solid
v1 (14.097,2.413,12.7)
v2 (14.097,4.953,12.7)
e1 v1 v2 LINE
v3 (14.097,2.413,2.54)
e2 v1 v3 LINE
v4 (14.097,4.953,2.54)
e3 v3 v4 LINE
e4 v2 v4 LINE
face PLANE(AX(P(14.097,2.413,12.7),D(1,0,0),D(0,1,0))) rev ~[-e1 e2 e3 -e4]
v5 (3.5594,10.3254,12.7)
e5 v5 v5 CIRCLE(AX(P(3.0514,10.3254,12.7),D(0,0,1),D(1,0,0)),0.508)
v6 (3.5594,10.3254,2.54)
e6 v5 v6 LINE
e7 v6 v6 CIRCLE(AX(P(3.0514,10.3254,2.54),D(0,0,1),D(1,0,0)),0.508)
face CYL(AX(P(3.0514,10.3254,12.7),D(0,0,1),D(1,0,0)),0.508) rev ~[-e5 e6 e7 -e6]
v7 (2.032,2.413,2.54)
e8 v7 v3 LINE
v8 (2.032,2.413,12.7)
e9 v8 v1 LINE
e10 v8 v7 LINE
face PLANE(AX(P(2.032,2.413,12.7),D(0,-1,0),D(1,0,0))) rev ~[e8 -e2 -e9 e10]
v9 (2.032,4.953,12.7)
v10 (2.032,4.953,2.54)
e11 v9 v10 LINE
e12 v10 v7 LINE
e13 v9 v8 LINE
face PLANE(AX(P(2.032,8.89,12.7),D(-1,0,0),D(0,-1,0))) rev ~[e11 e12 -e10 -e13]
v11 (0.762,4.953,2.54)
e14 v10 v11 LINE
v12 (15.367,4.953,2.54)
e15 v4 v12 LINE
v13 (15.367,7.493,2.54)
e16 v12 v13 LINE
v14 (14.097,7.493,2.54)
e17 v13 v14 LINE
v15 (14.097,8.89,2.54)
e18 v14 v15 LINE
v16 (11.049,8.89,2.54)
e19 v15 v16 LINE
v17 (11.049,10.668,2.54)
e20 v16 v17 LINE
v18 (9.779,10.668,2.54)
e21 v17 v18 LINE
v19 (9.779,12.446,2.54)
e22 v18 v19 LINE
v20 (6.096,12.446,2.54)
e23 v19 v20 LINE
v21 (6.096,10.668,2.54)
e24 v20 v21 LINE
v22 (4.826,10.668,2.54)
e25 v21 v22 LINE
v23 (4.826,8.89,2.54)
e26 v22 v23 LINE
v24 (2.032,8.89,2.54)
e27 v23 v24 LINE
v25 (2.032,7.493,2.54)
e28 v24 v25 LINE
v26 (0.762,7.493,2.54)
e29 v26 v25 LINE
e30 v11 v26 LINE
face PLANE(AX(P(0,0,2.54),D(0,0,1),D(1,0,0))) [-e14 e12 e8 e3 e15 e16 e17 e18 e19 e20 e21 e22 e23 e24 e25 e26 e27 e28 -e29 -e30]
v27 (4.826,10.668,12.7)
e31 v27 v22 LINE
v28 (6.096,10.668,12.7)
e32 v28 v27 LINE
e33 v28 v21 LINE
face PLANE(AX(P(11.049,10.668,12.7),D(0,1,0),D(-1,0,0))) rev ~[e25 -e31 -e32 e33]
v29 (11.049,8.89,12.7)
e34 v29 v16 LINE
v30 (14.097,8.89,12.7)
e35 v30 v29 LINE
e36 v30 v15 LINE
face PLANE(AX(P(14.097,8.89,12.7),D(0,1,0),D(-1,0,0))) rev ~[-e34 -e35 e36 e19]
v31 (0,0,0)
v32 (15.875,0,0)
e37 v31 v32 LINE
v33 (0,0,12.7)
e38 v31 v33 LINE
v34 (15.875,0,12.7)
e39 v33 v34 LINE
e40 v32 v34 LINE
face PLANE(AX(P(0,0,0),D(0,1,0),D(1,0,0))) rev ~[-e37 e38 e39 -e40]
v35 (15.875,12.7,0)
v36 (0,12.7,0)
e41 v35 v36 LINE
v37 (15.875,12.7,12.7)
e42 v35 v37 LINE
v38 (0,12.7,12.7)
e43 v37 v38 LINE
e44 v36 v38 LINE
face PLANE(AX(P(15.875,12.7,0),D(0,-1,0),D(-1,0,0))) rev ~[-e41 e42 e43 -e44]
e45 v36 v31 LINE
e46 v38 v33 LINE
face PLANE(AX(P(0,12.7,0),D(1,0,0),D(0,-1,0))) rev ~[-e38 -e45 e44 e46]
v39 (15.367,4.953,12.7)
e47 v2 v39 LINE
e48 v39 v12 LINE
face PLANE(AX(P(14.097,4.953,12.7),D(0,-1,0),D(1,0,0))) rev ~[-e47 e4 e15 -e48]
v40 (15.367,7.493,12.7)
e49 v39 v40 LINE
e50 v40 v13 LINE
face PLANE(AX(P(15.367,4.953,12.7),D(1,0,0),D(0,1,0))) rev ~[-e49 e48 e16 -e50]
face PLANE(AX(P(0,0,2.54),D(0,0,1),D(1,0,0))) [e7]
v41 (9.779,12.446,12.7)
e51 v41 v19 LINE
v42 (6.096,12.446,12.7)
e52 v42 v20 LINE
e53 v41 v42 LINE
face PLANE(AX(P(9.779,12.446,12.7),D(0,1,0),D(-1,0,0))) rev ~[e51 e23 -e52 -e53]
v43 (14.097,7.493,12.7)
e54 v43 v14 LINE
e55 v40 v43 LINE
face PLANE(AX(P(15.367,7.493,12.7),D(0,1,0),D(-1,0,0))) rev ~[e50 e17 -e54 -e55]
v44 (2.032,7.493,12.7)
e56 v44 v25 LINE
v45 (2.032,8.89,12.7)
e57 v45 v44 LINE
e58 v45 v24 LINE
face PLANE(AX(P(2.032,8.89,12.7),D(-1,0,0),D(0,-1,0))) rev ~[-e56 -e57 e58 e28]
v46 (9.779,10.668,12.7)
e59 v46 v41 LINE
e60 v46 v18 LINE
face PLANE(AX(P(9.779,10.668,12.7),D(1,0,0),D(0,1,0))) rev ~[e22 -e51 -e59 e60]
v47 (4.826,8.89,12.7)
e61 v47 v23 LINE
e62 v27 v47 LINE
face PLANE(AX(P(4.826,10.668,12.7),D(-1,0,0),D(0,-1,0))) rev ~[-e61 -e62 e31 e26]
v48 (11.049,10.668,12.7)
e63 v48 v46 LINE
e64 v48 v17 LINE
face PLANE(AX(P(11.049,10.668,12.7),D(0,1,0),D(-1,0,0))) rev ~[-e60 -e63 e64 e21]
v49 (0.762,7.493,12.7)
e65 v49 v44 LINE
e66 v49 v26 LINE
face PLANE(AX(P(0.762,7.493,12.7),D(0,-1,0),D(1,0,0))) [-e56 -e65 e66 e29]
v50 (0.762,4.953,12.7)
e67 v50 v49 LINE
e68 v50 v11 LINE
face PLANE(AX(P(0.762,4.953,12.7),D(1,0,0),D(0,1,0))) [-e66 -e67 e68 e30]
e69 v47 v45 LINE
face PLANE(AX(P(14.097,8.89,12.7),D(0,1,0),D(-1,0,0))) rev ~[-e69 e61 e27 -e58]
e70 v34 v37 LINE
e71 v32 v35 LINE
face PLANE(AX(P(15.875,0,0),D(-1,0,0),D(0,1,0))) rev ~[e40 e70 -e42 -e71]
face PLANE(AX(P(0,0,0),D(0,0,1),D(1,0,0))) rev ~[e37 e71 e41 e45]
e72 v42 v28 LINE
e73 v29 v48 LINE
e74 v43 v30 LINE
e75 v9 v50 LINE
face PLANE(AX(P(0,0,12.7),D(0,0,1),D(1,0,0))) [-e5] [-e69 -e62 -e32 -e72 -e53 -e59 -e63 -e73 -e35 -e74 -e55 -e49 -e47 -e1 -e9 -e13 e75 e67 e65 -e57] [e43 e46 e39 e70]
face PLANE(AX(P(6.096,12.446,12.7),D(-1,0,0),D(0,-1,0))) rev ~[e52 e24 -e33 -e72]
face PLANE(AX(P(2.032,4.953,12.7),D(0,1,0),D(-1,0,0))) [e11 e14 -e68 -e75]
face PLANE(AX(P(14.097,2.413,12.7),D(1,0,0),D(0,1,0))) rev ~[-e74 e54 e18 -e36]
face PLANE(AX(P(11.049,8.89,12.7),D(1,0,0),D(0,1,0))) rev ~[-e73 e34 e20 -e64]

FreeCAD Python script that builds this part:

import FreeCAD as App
import Part
import Sketcher

V = App.Vector
Q = App.Units.Quantity

doc = App.newDocument("Part")
body = doc.addObject("PartDesign::Body", "Body")

sketch1 = body.newObject("Sketcher::SketchObject", "Sketch")
sketch1.AttachmentSupport = (doc.getObject("XY_Plane"), [""])
sketch1.MapMode = "FlatFace"
sketch1.addGeometry(Part.LineSegment(V(0, 12.7, 0), V(0, 0, 0)), False)
sketch1.addGeometry(Part.LineSegment(V(0, 0, 0), V(15.875, 0, 0)), False)
sketch1.addGeometry(Part.LineSegment(V(15.875, 0, 0), V(15.875, 12.7, 0)), False)
sketch1.addGeometry(Part.LineSegment(V(15.875, 12.7, 0), V(0, 12.7, 0)), False)
sketch1.addConstraint(Sketcher.Constraint("Coincident", 0, 2, 1, 1))
sketch1.addConstraint(Sketcher.Constraint("Coincident", 1, 2, 2, 1))
sketch1.addConstraint(Sketcher.Constraint("Coincident", 2, 2, 3, 1))
sketch1.addConstraint(Sketcher.Constraint("Coincident", 3, 2, 0, 1))
sketch1.addConstraint(Sketcher.Constraint("Vertical", 0))
sketch1.addConstraint(Sketcher.Constraint("Horizontal", 1))
sketch1.addConstraint(Sketcher.Constraint("Vertical", 2))
sketch1.addConstraint(Sketcher.Constraint("Horizontal", 3))
sketch1.addConstraint(Sketcher.Constraint("Coincident", 0, 2, -1, 1))
sketch1.addConstraint(Sketcher.Constraint("DistanceY", 0, 2, 0, 1, Q("0.5 in")))
sketch1.addConstraint(Sketcher.Constraint("DistanceX", 1, 1, 1, 2, Q("0.625 in")))
pad1 = body.newObject("PartDesign::Pad", "Pad")
pad1.Profile = sketch1
pad1.Length = Q("0.5 in")

sketch2 = body.newObject("Sketcher::SketchObject", "Sketch001")
sketch2.AttachmentSupport = (doc.getObject("XY_Plane"), [""])
sketch2.MapMode = "FlatFace"
sketch2.AttachmentOffset = App.Placement(V(0, 0, 0.5 * 25.4), App.Rotation())
sketch2.addGeometry(Part.LineSegment(V(2.032, 8.89, 0), V(2.032, 2.413, 0)), False)
sketch2.addGeometry(Part.LineSegment(V(2.032, 2.413, 0), V(14.097, 2.413, 0)), False)
sketch2.addGeometry(Part.LineSegment(V(14.097, 2.413, 0), V(14.097, 8.89, 0)), False)
sketch2.addGeometry(Part.LineSegment(V(14.097, 8.89, 0), V(2.032, 8.89, 0)), False)
sketch2.addConstraint(Sketcher.Constraint("Coincident", 0, 2, 1, 1))
sketch2.addConstraint(Sketcher.Constraint("Coincident", 1, 2, 2, 1))
sketch2.addConstraint(Sketcher.Constraint("Coincident", 2, 2, 3, 1))
sketch2.addConstraint(Sketcher.Constraint("Coincident", 3, 2, 0, 1))
sketch2.addConstraint(Sketcher.Constraint("Vertical", 0))
sketch2.addConstraint(Sketcher.Constraint("Horizontal", 1))
sketch2.addConstraint(Sketcher.Constraint("Vertical", 2))
sketch2.addConstraint(Sketcher.Constraint("Horizontal", 3))
sketch2.addConstraint(Sketcher.Constraint("DistanceX", 1, 1, 1, 2, Q("0.475 in")))
sketch2.addConstraint(Sketcher.Constraint("DistanceY", 0, 2, 0, 1, Q("0.255 in")))
sketch2.addConstraint(Sketcher.Constraint("DistanceX", -1, 1, 0, 2, Q("0.08 in")))
sketch2.addConstraint(Sketcher.Constraint("DistanceY", -1, 1, 2, 2, Q("0.35 in")))
pocket1 = body.newObject("PartDesign::Pocket", "Pocket")
pocket1.Profile = sketch2
pocket1.Length = Q("0.4 in")

sketch3 = body.newObject("Sketcher::SketchObject", "Sketch002")
sketch3.AttachmentSupport = (doc.getObject("XY_Plane"), [""])
sketch3.MapMode = "FlatFace"
sketch3.AttachmentOffset = App.Placement(V(0, 0, 0.5 * 25.4), App.Rotation())
sketch3.addGeometry(Part.LineSegment(V(4.826, 10.668, 0), V(4.826, 8.89, 0)), False)
sketch3.addGeometry(Part.LineSegment(V(4.826, 8.89, 0), V(11.049, 8.89, 0)), False)
sketch3.addGeometry(Part.LineSegment(V(11.049, 8.89, 0), V(11.049, 10.668, 0)), False)
sketch3.addGeometry(Part.LineSegment(V(11.049, 10.668, 0), V(4.826, 10.668, 0)), False)
sketch3.addConstraint(Sketcher.Constraint("Coincident", 0, 2, 1, 1))
sketch3.addConstraint(Sketcher.Constraint("Coincident", 1, 2, 2, 1))
sketch3.addConstraint(Sketcher.Constraint("Coincident", 2, 2, 3, 1))
sketch3.addConstraint(Sketcher.Constraint("Coincident", 3, 2, 0, 1))
sketch3.addConstraint(Sketcher.Constraint("Vertical", 0))
sketch3.addConstraint(Sketcher.Constraint("Horizontal", 1))
sketch3.addConstraint(Sketcher.Constraint("Vertical", 2))
sketch3.addConstraint(Sketcher.Constraint("Horizontal", 3))
sketch3.addConstraint(Sketcher.Constraint("DistanceX", 1, 1, 1, 2, Q("0.245 in")))
sketch3.addConstraint(Sketcher.Constraint("DistanceY", 0, 2, 0, 1, Q("0.07 in")))
sketch3.addConstraint(Sketcher.Constraint("DistanceX", -1, 1, 0, 2, Q("0.19 in")))
sketch3.addConstraint(Sketcher.Constraint("DistanceY", -1, 1, 0, 2, Q("0.35 in")))
pocket2 = body.newObject("PartDesign::Pocket", "Pocket001")
pocket2.Profile = sketch3
pocket2.Length = Q("0.4 in")

sketch4 = body.newObject("Sketcher::SketchObject", "Sketch003")
sketch4.AttachmentSupport = (doc.getObject("XY_Plane"), [""])
sketch4.MapMode = "FlatFace"
sketch4.AttachmentOffset = App.Placement(V(0, 0, 0.5 * 25.4), App.Rotation())
sketch4.addGeometry(Part.LineSegment(V(6.096, 12.446, 0), V(6.096, 10.668, 0)), False)
sketch4.addGeometry(Part.LineSegment(V(6.096, 10.668, 0), V(9.779, 10.668, 0)), False)
sketch4.addGeometry(Part.LineSegment(V(9.779, 10.668, 0), V(9.779, 12.446, 0)), False)
sketch4.addGeometry(Part.LineSegment(V(9.779, 12.446, 0), V(6.096, 12.446, 0)), False)
sketch4.addConstraint(Sketcher.Constraint("Coincident", 0, 2, 1, 1))
sketch4.addConstraint(Sketcher.Constraint("Coincident", 1, 2, 2, 1))
sketch4.addConstraint(Sketcher.Constraint("Coincident", 2, 2, 3, 1))
sketch4.addConstraint(Sketcher.Constraint("Coincident", 3, 2, 0, 1))
sketch4.addConstraint(Sketcher.Constraint("Vertical", 0))
sketch4.addConstraint(Sketcher.Constraint("Horizontal", 1))
sketch4.addConstraint(Sketcher.Constraint("Vertical", 2))
sketch4.addConstraint(Sketcher.Constraint("Horizontal", 3))
sketch4.addConstraint(Sketcher.Constraint("DistanceY", 0, 2, 0, 1, Q("0.07 in")))
sketch4.addConstraint(Sketcher.Constraint("DistanceX", 1, 1, 1, 2, Q("0.145 in")))
sketch4.addConstraint(Sketcher.Constraint("DistanceX", -1, 1, 0, 2, Q("0.24 in")))
sketch4.addConstraint(Sketcher.Constraint("DistanceY", -1, 1, 0, 2, Q("0.42 in")))
pocket3 = body.newObject("PartDesign::Pocket", "Pocket002")
pocket3.Profile = sketch4
pocket3.Length = Q("0.4 in")

sketch5 = body.newObject("Sketcher::SketchObject", "Sketch004")
sketch5.AttachmentSupport = (doc.getObject("XY_Plane"), [""])
sketch5.MapMode = "FlatFace"
sketch5.AttachmentOffset = App.Placement(V(0, 0, 0.5 * 25.4), App.Rotation())
sketch5.addGeometry(Part.LineSegment(V(0.762, 4.953, 0), V(2.032, 4.953, 0)), False)
sketch5.addGeometry(Part.LineSegment(V(2.032, 4.953, 0), V(2.032, 7.493, 0)), False)
sketch5.addGeometry(Part.LineSegment(V(2.032, 7.493, 0), V(0.762, 7.493, 0)), False)
sketch5.addGeometry(Part.LineSegment(V(0.762, 7.493, 0), V(0.762, 4.953, 0)), False)
sketch5.addGeometry(Part.LineSegment(V(14.097, 7.493, 0), V(14.097, 4.953, 0)), False)
sketch5.addGeometry(Part.LineSegment(V(14.097, 4.953, 0), V(15.367, 4.953, 0)), False)
sketch5.addGeometry(Part.LineSegment(V(15.367, 4.953, 0), V(15.367, 7.493, 0)), False)
sketch5.addGeometry(Part.LineSegment(V(15.367, 7.493, 0), V(14.097, 7.493, 0)), False)
sketch5.addConstraint(Sketcher.Constraint("Coincident", 0, 2, 1, 1))
sketch5.addConstraint(Sketcher.Constraint("Coincident", 1, 2, 2, 1))
sketch5.addConstraint(Sketcher.Constraint("Coincident", 2, 2, 3, 1))
sketch5.addConstraint(Sketcher.Constraint("Coincident", 3, 2, 0, 1))
sketch5.addConstraint(Sketcher.Constraint("Coincident", 4, 2, 5, 1))
sketch5.addConstraint(Sketcher.Constraint("Coincident", 5, 2, 6, 1))
sketch5.addConstraint(Sketcher.Constraint("Coincident", 6, 2, 7, 1))
sketch5.addConstraint(Sketcher.Constraint("Coincident", 7, 2, 4, 1))
sketch5.addConstraint(Sketcher.Constraint("Horizontal", 0))
sketch5.addConstraint(Sketcher.Constraint("Vertical", 1))
sketch5.addConstraint(Sketcher.Constraint("Horizontal", 2))
sketch5.addConstraint(Sketcher.Constraint("Vertical", 3))
sketch5.addConstraint(Sketcher.Constraint("Vertical", 4))
sketch5.addConstraint(Sketcher.Constraint("Horizontal", 5))
sketch5.addConstraint(Sketcher.Constraint("Vertical", 6))
sketch5.addConstraint(Sketcher.Constraint("Horizontal", 7))
sketch5.addConstraint(Sketcher.Constraint("Horizontal", 3, 2, 4, 2))
sketch5.addConstraint(Sketcher.Constraint("Horizontal", 2, 2, 6, 2))
sketch5.addConstraint(Sketcher.Constraint("Equal", 2, 5))
sketch5.addConstraint(Sketcher.Constraint("DistanceY", 1, 1, 1, 2, Q("0.1 in")))
sketch5.addConstraint(Sketcher.Constraint("DistanceX", 0, 1, 0, 2, Q("0.05 in")))
sketch5.addConstraint(Sketcher.Constraint("DistanceX", -1, 1, 0, 2, Q("0.08 in")))
sketch5.addConstraint(Sketcher.Constraint("DistanceY", -1, 1, 0, 2, Q("0.195 in")))
sketch5.addConstraint(Sketcher.Constraint("DistanceX", -1, 1, 4, 2, Q("0.555 in")))
pocket4 = body.newObject("PartDesign::Pocket", "Pocket003")
pocket4.Profile = sketch5
pocket4.Length = Q("0.4 in")

sketch6 = body.newObject("Sketcher::SketchObject", "Sketch005")
sketch6.AttachmentSupport = (doc.getObject("XY_Plane"), [""])
sketch6.MapMode = "FlatFace"
sketch6.AttachmentOffset = App.Placement(V(0, 0, 0.5 * 25.4), App.Rotation())
sketch6.addGeometry(Part.Circle(V(3.0514, 10.3254, 0), V(0, 0, 1), 0.508), False)
sketch6.addConstraint(Sketcher.Constraint("Diameter", 0, Q("0.04 in")))
sketch6.addConstraint(Sketcher.Constraint("DistanceY", -1, 1, 0, 3, Q("0.4065 in")))
sketch6.addConstraint(Sketcher.Constraint("DistanceX", -1, 1, 0, 3, 3.0514))
pocket5 = body.newObject("PartDesign::Pocket", "Pocket004")
pocket5.Profile = sketch6
pocket5.Length = Q("0.4 in")

doc.recompute()
